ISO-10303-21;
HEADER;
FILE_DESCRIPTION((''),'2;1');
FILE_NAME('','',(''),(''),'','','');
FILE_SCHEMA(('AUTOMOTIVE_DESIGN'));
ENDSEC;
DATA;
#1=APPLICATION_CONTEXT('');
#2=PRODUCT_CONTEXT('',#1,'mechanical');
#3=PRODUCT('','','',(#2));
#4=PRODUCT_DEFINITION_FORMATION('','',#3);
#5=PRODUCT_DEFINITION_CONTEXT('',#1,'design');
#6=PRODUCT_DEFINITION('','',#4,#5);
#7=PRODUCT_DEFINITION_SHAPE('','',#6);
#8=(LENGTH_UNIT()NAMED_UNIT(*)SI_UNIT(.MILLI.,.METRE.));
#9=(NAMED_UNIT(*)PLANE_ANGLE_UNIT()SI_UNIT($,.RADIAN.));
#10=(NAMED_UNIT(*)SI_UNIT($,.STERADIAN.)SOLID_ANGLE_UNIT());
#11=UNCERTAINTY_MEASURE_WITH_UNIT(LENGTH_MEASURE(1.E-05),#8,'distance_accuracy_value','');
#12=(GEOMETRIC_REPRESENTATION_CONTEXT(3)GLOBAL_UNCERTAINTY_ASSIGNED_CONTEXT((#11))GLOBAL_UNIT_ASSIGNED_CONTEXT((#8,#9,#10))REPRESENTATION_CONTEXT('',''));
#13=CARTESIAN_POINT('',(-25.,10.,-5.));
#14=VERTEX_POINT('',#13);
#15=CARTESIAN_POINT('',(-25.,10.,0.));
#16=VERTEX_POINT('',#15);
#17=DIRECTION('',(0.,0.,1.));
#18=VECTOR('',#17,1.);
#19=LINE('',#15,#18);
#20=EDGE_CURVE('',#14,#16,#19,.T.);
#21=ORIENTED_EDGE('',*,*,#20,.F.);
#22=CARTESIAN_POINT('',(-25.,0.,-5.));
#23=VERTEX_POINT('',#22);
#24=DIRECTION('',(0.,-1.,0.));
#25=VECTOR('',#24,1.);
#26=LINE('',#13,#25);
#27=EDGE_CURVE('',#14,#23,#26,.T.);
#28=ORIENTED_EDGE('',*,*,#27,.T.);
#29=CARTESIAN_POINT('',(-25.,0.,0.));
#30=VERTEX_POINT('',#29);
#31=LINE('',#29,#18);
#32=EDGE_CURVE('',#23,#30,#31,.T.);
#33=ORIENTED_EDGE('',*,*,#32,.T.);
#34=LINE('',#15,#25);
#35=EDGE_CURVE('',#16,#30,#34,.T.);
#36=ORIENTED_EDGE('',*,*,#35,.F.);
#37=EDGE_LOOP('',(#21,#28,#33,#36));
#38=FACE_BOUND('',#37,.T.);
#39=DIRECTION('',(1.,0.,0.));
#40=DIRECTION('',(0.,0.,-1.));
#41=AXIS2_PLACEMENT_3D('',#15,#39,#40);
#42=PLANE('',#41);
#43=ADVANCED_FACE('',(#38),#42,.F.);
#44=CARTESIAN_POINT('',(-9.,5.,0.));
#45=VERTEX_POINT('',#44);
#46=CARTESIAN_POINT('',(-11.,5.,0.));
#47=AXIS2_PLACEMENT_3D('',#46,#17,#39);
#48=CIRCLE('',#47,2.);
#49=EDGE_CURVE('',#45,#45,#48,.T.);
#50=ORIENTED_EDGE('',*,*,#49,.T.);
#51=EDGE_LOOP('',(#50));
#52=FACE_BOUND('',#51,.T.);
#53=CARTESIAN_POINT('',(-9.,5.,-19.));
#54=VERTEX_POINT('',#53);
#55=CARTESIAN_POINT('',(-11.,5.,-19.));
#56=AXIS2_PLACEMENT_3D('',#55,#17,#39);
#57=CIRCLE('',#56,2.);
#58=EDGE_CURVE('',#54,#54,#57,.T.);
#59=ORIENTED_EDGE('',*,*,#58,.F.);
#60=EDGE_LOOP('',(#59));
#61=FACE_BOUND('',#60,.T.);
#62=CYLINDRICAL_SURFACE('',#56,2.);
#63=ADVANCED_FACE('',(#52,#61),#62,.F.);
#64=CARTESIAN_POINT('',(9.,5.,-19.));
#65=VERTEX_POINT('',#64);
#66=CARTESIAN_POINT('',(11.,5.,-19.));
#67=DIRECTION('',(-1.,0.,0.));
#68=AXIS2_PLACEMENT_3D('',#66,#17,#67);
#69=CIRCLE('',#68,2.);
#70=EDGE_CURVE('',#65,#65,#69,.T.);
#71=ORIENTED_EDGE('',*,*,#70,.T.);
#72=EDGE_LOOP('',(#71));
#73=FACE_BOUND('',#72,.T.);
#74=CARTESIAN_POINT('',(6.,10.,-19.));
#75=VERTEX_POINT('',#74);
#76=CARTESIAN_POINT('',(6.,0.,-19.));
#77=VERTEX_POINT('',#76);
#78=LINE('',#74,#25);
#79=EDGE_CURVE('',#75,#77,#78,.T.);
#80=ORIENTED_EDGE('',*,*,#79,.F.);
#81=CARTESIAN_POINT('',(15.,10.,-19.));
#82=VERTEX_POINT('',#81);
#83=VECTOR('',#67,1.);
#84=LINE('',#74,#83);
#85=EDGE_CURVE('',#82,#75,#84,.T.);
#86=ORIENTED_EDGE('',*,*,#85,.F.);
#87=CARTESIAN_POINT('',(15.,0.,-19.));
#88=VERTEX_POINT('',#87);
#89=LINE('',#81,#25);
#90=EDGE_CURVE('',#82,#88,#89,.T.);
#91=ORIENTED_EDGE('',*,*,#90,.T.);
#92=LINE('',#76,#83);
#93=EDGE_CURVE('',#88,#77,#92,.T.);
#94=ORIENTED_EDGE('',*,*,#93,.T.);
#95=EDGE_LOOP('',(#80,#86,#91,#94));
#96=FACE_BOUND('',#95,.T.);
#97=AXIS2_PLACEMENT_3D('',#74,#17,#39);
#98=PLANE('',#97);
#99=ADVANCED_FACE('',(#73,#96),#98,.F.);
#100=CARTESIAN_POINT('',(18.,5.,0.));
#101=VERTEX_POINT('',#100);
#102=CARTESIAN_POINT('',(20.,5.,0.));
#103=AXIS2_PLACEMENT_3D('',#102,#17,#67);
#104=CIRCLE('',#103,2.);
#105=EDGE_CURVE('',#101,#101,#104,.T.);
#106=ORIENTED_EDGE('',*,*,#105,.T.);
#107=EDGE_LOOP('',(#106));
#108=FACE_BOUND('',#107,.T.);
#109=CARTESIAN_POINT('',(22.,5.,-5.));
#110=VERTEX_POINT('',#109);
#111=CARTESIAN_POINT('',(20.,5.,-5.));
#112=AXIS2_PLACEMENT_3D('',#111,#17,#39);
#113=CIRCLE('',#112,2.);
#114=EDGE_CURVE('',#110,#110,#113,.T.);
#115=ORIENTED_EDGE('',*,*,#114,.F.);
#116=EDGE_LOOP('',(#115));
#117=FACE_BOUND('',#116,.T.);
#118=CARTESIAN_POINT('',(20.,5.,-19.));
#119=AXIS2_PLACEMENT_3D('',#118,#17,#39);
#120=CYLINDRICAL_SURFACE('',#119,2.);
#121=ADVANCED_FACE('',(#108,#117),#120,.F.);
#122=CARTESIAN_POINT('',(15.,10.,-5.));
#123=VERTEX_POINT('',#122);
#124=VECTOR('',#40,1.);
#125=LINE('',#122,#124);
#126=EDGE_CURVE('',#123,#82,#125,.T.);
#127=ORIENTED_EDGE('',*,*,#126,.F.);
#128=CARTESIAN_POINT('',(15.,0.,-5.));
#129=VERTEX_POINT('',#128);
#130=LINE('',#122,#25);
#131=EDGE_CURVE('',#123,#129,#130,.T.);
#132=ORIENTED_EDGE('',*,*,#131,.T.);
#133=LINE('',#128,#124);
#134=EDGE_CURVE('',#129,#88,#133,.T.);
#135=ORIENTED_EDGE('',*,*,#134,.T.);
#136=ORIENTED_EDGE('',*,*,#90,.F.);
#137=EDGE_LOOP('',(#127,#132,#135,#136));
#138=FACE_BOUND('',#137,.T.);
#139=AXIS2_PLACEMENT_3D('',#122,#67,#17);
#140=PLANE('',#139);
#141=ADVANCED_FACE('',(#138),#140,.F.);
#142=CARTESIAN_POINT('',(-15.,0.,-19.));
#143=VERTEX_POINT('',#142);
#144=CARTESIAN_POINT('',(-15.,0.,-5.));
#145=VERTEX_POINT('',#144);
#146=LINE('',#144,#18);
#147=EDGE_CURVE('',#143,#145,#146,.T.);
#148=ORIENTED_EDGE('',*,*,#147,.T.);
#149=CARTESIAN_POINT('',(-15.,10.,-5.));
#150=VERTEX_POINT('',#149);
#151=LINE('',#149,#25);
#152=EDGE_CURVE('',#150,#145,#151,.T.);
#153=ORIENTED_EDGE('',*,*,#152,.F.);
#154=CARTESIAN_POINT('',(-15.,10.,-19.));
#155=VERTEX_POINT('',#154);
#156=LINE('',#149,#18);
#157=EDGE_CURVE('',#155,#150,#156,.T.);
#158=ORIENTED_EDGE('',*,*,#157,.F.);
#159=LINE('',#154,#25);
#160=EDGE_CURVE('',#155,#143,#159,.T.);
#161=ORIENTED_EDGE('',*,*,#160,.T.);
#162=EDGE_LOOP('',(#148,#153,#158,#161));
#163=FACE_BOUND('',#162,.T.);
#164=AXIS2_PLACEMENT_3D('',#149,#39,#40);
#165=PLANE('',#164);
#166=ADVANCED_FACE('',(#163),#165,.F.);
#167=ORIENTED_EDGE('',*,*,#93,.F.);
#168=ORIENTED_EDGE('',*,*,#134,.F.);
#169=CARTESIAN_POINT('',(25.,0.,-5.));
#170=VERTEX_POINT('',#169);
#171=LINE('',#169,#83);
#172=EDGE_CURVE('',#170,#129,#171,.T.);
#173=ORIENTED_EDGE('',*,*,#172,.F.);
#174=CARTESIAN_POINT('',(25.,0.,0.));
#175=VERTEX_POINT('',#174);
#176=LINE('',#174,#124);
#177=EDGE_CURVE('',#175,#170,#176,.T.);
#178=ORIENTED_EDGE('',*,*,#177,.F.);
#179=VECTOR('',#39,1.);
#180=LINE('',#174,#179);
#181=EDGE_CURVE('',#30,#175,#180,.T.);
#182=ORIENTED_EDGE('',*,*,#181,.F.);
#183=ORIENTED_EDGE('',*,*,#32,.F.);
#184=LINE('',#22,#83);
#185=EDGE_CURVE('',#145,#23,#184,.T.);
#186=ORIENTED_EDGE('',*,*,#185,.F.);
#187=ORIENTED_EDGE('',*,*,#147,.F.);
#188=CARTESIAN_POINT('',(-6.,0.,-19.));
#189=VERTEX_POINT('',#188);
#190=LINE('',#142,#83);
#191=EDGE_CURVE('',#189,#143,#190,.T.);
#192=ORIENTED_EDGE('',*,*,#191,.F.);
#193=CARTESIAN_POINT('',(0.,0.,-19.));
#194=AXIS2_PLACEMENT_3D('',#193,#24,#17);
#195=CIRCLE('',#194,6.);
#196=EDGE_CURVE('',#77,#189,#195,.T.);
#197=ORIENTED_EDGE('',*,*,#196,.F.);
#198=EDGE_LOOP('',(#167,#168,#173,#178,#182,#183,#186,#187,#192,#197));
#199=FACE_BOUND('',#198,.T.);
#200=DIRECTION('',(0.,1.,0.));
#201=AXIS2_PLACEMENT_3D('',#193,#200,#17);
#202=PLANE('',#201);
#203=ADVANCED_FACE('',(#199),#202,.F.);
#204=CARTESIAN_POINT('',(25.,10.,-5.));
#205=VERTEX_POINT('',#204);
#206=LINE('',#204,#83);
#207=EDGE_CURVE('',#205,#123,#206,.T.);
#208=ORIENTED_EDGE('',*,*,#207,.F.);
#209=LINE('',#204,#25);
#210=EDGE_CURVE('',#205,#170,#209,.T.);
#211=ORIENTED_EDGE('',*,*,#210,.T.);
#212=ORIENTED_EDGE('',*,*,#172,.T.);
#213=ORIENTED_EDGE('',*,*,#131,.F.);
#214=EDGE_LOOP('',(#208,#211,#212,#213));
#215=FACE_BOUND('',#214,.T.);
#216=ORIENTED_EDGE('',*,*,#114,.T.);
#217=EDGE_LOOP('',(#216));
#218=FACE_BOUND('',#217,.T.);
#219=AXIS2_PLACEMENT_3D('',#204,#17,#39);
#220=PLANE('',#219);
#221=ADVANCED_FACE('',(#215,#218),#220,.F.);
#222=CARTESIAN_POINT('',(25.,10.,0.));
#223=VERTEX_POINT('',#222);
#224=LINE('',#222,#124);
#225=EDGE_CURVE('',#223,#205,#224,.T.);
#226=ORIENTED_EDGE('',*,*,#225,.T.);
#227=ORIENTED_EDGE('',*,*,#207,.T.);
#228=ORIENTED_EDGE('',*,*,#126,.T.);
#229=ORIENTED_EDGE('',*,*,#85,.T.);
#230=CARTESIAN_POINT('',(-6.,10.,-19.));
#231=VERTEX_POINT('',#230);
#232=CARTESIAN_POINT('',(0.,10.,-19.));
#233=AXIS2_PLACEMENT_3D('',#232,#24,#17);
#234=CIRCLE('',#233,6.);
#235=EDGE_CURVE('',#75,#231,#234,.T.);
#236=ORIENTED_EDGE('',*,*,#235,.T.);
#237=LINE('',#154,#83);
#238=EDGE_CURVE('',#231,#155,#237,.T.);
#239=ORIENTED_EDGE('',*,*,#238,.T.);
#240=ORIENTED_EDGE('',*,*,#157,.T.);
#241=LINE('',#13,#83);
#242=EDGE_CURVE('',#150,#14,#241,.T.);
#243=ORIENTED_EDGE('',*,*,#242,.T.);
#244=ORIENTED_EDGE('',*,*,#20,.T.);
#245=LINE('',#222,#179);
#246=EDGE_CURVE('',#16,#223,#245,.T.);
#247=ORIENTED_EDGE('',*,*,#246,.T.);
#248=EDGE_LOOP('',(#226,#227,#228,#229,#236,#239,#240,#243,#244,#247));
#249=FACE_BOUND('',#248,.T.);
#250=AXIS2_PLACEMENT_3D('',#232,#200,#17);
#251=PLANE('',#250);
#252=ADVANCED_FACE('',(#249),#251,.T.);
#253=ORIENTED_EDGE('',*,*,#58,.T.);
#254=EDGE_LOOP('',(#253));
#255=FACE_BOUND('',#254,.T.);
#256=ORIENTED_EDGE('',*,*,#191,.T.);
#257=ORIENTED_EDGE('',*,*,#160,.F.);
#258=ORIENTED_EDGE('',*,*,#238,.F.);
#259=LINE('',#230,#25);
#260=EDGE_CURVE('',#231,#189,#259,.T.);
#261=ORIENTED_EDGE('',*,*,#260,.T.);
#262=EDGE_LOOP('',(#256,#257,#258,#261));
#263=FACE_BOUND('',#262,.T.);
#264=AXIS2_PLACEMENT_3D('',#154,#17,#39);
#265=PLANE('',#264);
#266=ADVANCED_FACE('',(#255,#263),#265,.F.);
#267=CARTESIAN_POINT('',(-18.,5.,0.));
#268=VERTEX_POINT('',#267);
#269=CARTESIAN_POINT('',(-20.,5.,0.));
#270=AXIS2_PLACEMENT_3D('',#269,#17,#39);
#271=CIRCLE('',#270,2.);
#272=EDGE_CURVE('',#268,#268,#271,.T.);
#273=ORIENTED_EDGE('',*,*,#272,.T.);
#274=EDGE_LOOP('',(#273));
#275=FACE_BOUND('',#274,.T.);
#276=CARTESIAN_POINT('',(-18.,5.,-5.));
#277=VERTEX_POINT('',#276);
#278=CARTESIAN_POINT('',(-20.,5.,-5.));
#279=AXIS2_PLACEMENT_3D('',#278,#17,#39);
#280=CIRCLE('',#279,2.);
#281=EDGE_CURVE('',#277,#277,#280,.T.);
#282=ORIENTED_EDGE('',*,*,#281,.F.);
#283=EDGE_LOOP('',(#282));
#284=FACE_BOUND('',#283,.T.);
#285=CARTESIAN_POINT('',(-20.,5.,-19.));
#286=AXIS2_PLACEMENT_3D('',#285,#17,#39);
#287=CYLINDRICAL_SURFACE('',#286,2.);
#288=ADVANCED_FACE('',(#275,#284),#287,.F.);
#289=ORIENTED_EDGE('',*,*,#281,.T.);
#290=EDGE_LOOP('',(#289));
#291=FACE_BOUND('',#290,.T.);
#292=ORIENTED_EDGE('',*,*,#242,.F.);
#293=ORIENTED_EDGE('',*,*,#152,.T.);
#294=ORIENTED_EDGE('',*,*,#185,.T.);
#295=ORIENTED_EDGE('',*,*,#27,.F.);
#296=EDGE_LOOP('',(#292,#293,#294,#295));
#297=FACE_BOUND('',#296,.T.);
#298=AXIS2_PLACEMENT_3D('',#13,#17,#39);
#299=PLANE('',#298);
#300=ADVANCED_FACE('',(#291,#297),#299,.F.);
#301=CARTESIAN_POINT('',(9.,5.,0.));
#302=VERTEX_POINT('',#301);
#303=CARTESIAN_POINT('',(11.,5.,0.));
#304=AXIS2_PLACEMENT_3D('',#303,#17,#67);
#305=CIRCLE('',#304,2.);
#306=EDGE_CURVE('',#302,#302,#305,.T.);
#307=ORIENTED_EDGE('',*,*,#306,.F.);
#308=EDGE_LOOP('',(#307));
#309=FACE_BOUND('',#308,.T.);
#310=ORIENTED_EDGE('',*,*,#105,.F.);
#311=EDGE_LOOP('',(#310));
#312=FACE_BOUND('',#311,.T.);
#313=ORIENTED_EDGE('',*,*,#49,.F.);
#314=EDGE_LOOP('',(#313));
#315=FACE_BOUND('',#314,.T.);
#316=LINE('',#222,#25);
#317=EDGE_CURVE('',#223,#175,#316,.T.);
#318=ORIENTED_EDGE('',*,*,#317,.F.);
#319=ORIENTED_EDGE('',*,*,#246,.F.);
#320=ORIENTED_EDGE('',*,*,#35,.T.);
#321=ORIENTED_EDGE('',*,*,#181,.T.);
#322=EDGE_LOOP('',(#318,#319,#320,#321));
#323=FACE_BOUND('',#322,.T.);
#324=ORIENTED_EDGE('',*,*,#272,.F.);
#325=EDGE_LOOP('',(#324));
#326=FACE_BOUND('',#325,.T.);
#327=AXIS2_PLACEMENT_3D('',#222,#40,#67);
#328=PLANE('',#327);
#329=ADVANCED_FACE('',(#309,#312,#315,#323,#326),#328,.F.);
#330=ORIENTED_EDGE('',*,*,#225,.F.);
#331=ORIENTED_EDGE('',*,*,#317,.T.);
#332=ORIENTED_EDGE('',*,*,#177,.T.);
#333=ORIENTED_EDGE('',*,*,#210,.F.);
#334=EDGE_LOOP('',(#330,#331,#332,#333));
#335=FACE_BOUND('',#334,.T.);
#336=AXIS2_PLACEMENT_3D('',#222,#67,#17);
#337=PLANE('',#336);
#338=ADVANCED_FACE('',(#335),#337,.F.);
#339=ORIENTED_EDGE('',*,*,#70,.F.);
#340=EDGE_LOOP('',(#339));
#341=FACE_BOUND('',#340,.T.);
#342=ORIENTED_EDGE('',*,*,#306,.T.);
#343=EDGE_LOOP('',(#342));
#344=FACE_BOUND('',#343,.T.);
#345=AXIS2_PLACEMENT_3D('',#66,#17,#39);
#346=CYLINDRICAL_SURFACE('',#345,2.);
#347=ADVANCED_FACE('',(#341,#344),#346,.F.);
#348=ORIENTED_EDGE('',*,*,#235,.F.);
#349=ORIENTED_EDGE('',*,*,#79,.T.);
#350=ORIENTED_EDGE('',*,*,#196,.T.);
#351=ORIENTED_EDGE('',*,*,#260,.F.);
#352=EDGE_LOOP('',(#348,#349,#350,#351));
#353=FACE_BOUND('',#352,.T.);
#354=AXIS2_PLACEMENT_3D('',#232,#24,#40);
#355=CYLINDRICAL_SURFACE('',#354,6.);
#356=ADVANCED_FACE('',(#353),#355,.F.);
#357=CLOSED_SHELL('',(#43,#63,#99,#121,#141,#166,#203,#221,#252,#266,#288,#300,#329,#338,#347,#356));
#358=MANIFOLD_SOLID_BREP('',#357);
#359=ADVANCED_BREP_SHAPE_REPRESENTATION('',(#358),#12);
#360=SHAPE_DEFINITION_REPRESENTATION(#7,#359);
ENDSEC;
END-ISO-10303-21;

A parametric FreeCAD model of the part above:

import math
import FreeCAD as App
import Part
import Sketcher
Q = App.Units.Quantity

doc = App.newDocument("Part")
body = doc.addObject("PartDesign::Body", "Body")

sketch1 = body.newObject("Sketcher::SketchObject", "Sketch")
sketch1.AttachmentSupport = (doc.getObject("XZ_Plane"), [""])
sketch1.MapMode = "FlatFace"
sketch1.addGeometry([
    Part.LineSegment(App.Vector(-25, 0, 0), App.Vector(25, 0, 0)),
    Part.LineSegment(App.Vector(25, 0, 0), App.Vector(25, -5, 0)),
    Part.LineSegment(App.Vector(25, -5, 0), App.Vector(15, -5, 0)),
    Part.LineSegment(App.Vector(15, -5, 0), App.Vector(15, -19, 0)),
    Part.LineSegment(App.Vector(15, -19, 0), App.Vector(6, -19, 0)),
    Part.ArcOfCircle(Part.Circle(App.Vector(0, -19, 0), App.Vector(0, 0, 1), 6), math.radians(0), math.radians(180)),
    Part.LineSegment(App.Vector(-6, -19, 0), App.Vector(-15, -19, 0)),
    Part.LineSegment(App.Vector(-15, -19, 0), App.Vector(-15, -5, 0)),
    Part.LineSegment(App.Vector(-15, -5, 0), App.Vector(-25, -5, 0)),
    Part.LineSegment(App.Vector(-25, -5, 0), App.Vector(-25, 0, 0)),
], False)
sketch1.addConstraint([
    Sketcher.Constraint("Coincident", 0, 2, 1, 1),
    Sketcher.Constraint("Coincident", 1, 2, 2, 1),
    Sketcher.Constraint("Coincident", 2, 2, 3, 1),
    Sketcher.Constraint("Coincident", 3, 2, 4, 1),
    Sketcher.Constraint("Coincident", 4, 2, 5, 1),
    Sketcher.Constraint("Coincident", 5, 2, 6, 1),
    Sketcher.Constraint("Coincident", 6, 2, 7, 1),
    Sketcher.Constraint("Coincident", 7, 2, 8, 1),
    Sketcher.Constraint("Coincident", 8, 2, 9, 1),
    Sketcher.Constraint("Coincident", 9, 2, 0, 1),
    Sketcher.Constraint("Horizontal", 0),
    Sketcher.Constraint("Vertical", 1),
    Sketcher.Constraint("Horizontal", 2),
    Sketcher.Constraint("Vertical", 3),
    Sketcher.Constraint("Horizontal", 4),
    Sketcher.Constraint("Horizontal", 6),
    Sketcher.Constraint("Vertical", 7),
    Sketcher.Constraint("Horizontal", 8),
    Sketcher.Constraint("Vertical", 9),
    Sketcher.Constraint("Symmetric", 0, 2, 9, 2, -1, 1),
    Sketcher.Constraint("Symmetric", 4, 2, 5, 2, -2),
    Sketcher.Constraint("Symmetric", 2, 2, 7, 2, -2),
    Sketcher.Constraint("Horizontal", 5, 3, 3, 2),
    Sketcher.Constraint("Radius", 5, Q("6 mm")),
    Sketcher.Constraint("DistanceX", 0, 1, 0, 2, Q("50 mm")),
    Sketcher.Constraint("DistanceX", 2, 2, 2, 1, Q("10 mm")),
    Sketcher.Constraint("DistanceY", 1, 2, 1, 1, Q("5 mm")),
    Sketcher.Constraint("DistanceY", 3, 2, 3, 1, Q("14 mm")),
])
pad1 = body.newObject("PartDesign::Pad", "Pad")
pad1.Profile = sketch1
pad1.Length = 10
pad1.Reversed = True

sketch2 = body.newObject("Sketcher::SketchObject", "Sketch001")
sketch2.AttachmentSupport = (doc.getObject("XY_Plane"), [""])
sketch2.MapMode = "FlatFace"
sketch2.addGeometry([
    Part.Circle(App.Vector(-20, 5, 0), App.Vector(0, 0, 1), 2),
    Part.Circle(App.Vector(-11, 5, 0), App.Vector(0, 0, 1), 2),
    Part.Circle(App.Vector(20, 5, 0), App.Vector(0, 0, 1), 2),
    Part.Circle(App.Vector(11, 5, 0), App.Vector(0, 0, 1), 2),
], False)
sketch2.addConstraint([
    Sketcher.Constraint("Equal", 0, 1),
    Sketcher.Constraint("Equal", 1, 2),
    Sketcher.Constraint("Equal", 2, 3),
    Sketcher.Constraint("Symmetric", 0, 3, 2, 3, -2),
    Sketcher.Constraint("Symmetric", 1, 3, 3, 3, -2),
    Sketcher.Constraint("Horizontal", 0, 3, 1, 3),
    Sketcher.Constraint("Diameter", 0, Q("4 mm")),
    Sketcher.Constraint("DistanceX", 0, 3, -1, 1, Q("20 mm")),
    Sketcher.Constraint("DistanceY", -1, 1, 0, 3, Q("5 mm")),
    Sketcher.Constraint("DistanceX", 1, 3, -1, 1, Q("11 mm")),
])
pocket1 = body.newObject("PartDesign::Pocket", "Pocket")
pocket1.Profile = sketch2
pocket1.Type = "ThroughAll"

doc.recompute()
